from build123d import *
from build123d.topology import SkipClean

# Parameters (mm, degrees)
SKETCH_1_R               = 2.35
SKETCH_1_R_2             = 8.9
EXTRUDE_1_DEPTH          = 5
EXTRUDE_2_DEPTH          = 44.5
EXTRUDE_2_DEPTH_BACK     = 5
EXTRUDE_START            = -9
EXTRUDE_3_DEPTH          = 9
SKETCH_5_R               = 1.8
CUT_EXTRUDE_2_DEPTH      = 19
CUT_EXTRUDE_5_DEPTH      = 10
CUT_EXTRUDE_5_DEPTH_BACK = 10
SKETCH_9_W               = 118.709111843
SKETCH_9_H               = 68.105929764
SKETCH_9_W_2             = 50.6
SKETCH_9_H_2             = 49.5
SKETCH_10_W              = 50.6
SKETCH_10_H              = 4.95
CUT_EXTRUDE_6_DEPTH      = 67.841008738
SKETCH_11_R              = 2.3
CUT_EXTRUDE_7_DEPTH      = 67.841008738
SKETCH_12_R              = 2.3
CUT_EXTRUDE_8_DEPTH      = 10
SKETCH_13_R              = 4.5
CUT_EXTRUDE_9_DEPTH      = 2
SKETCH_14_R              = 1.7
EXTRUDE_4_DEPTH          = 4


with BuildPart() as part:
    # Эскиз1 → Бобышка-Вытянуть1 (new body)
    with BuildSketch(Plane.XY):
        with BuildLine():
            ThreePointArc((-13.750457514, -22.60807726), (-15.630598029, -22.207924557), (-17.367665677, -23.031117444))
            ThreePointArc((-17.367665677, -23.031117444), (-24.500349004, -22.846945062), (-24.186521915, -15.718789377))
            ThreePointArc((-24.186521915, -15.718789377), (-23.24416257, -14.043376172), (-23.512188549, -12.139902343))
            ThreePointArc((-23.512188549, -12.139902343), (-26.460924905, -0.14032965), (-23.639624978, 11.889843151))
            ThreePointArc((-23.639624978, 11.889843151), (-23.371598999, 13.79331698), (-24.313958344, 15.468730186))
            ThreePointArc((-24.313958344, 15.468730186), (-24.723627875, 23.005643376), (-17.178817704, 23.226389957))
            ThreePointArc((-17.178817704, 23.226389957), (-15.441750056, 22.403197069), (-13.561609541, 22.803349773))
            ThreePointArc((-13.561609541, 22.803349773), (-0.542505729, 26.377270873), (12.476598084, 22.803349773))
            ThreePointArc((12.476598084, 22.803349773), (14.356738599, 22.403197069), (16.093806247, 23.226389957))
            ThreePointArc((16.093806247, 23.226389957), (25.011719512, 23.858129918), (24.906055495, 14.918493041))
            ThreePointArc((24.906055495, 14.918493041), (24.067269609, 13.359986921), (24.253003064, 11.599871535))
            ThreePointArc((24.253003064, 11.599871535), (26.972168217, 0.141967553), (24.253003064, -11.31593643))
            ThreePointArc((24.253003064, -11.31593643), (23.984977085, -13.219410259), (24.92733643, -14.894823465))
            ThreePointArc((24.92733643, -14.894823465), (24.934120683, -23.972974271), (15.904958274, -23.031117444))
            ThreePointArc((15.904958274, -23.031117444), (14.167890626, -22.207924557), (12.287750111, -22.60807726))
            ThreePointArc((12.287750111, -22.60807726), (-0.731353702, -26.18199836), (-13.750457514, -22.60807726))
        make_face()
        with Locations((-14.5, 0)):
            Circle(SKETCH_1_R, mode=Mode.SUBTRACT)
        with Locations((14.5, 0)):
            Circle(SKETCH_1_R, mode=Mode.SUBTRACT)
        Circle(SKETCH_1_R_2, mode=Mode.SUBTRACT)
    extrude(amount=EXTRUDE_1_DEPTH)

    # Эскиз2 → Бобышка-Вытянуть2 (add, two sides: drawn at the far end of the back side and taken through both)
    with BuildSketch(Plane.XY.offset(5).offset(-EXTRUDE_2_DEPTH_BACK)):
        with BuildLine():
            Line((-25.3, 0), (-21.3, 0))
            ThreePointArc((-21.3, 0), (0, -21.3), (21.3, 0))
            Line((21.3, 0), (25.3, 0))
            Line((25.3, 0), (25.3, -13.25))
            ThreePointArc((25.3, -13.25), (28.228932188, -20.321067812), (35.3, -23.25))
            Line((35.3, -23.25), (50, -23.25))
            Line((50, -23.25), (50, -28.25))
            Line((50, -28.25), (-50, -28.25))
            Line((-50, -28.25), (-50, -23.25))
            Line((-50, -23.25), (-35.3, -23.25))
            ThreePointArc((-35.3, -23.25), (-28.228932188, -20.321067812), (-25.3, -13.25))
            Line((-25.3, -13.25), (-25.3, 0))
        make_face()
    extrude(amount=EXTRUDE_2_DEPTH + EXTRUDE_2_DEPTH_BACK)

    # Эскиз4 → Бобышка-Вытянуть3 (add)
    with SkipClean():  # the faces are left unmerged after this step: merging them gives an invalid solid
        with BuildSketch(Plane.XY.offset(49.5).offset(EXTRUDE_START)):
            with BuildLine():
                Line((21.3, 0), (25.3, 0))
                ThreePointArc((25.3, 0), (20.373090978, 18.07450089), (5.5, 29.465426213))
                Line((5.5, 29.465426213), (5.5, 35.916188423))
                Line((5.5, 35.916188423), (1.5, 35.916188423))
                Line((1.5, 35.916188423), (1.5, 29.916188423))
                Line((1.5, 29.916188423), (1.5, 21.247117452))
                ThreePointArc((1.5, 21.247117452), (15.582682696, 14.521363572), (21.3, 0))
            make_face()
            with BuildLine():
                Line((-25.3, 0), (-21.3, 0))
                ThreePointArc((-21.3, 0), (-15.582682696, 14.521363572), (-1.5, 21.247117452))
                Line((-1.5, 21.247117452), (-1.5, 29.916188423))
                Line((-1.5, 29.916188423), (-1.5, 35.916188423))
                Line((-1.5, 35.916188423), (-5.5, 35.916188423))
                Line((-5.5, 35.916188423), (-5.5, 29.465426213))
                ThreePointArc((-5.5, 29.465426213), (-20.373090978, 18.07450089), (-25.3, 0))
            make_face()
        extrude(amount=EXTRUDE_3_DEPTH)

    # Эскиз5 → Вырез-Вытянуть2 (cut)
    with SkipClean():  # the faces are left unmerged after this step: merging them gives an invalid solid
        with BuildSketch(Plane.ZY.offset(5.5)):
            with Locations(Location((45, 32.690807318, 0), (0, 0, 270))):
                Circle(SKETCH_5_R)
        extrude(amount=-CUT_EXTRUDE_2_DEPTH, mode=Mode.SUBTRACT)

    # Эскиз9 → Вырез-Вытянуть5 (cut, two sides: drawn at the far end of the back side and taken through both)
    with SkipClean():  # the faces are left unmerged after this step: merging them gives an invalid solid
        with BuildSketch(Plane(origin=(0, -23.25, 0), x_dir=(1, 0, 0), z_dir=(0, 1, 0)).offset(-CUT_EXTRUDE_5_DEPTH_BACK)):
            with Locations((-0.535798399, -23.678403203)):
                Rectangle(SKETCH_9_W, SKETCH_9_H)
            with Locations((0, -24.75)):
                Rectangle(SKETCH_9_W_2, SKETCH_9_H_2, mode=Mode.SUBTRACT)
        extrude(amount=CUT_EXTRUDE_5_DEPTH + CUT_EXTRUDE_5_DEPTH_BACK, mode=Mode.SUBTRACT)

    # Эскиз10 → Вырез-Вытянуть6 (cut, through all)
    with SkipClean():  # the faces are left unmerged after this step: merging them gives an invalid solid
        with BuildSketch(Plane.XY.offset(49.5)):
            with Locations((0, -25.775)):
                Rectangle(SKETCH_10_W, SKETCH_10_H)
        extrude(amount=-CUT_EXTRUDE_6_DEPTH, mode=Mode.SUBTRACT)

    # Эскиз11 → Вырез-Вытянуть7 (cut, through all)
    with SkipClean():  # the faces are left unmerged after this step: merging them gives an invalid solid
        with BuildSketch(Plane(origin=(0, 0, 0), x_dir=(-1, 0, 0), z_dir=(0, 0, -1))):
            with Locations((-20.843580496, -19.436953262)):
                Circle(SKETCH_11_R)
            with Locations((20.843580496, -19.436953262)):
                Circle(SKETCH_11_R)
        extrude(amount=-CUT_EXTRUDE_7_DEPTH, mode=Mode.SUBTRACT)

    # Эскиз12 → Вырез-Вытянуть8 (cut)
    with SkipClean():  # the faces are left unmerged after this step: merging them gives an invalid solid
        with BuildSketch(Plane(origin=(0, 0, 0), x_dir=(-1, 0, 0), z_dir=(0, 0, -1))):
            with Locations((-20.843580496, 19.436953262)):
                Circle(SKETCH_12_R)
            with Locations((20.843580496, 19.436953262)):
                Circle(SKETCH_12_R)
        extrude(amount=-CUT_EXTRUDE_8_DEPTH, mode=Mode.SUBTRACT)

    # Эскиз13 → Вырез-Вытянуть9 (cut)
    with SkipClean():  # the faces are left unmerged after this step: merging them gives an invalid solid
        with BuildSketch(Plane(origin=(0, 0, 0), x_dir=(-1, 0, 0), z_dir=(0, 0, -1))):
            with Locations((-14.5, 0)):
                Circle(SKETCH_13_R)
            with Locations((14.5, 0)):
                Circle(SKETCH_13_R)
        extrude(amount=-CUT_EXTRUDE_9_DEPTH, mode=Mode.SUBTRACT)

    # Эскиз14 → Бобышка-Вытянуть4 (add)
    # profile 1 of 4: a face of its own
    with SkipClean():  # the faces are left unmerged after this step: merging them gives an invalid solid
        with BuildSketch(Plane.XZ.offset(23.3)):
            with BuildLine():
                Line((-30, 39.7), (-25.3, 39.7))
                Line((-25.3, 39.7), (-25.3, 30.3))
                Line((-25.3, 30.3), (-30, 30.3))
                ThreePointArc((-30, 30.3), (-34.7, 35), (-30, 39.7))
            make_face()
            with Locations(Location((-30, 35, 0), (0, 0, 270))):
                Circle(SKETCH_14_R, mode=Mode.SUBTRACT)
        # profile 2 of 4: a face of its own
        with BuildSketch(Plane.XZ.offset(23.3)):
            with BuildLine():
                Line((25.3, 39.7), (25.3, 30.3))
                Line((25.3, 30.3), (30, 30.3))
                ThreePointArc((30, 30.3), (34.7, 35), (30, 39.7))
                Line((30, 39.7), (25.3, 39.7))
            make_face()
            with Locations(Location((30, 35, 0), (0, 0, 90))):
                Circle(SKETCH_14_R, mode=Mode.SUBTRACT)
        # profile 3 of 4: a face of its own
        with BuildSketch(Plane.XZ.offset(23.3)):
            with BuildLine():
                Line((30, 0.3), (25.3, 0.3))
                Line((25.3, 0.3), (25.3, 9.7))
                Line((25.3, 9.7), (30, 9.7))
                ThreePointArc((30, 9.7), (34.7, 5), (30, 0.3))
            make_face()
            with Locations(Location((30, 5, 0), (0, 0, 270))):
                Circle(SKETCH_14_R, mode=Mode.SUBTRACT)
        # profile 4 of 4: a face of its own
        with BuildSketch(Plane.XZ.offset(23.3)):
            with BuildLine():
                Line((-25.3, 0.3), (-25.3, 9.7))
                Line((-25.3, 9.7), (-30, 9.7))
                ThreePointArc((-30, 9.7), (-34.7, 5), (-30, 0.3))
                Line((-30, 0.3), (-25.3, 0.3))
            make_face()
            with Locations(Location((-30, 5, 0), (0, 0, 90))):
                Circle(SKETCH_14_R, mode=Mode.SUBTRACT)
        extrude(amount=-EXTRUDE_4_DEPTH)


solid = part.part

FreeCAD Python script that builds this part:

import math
import FreeCAD as App
import Part
import Sketcher

V = App.Vector
Q = App.Units.Quantity


def add_polygon(sketch, points):
    """Adds a closed chain of lines whose ends are joined by coincident constraints."""
    first, n = sketch.GeometryCount, len(points)
    for a, b in zip(points, points[1:] + points[:1]):
        sketch.addGeometry(Part.LineSegment(App.Vector(*a, 0), App.Vector(*b, 0)), False)
    for i in range(n):
        sketch.addConstraint(Sketcher.Constraint("Coincident", first + i, 2, first + (i + 1) % n, 1))

doc = App.newDocument("Part")
body = doc.addObject("PartDesign::Body", "Body")

sketch1 = doc.addObject("Sketcher::SketchObject", "Sketch")
body.addObject(sketch1)
sketch1.AttachmentSupport = (doc.XY_Plane, [""])
sketch1.MapMode = "FlatFace"
sketch1.addGeometry(Part.ArcOfCircle(Part.Circle(V(-15.282117, -25.187616, 0), V(0, 0, 1), 3), math.radians(59.299322), math.radians(134.041799)), False)
sketch1.addGeometry(Part.ArcOfCircle(Part.Circle(V(-0.731354, -0.681998, 0), V(0, 0, 1), 25.5), math.radians(-120.700678), math.radians(-59.299322)), False)
sketch1.addGeometry(Part.ArcOfCircle(Part.Circle(V(13.819409, -25.187616, 0), V(0, 0, 1), 3), math.radians(45.958201), math.radians(120.700678)), False)
sketch1.addGeometry(Part.ArcOfCircle(Part.Circle(V(20.84358, -19.436953, 0), V(0, 0, 1), 6.108028), math.radians(-143.954124), math.radians(48.041799)), False)
sketch1.addGeometry(Part.ArcOfCircle(Part.Circle(V(26.933101, -12.663925, 0), V(0, 0, 1), 3), math.radians(153.299322), math.radians(228.041799)), False)
sketch1.addGeometry(Part.ArcOfCircle(Part.Circle(V(1.472168, 0.141968, 0), V(0, 0, 1), 25.5), math.radians(-26.700678), math.radians(26.700678)), False)
sketch1.addGeometry(Part.ArcOfCircle(Part.Circle(V(27.010818, 12.780743, 0), V(0, 0, 1), 3), math.radians(134.554506), math.radians(203.180173)), False)
sketch1.addGeometry(Part.ArcOfCircle(Part.Circle(V(20.84358, 19.436953, 0), V(0, 0, 1), 6.076198), math.radians(-48.041799), math.radians(141.416642)), False)
sketch1.addGeometry(Part.ArcOfCircle(Part.Circle(V(14.008257, 25.382888, 0), V(0, 0, 1), 3), math.radians(-120.700678), math.radians(-45.958201)), False)
sketch1.addGeometry(Part.ArcOfCircle(Part.Circle(V(-0.542506, 0.877271, 0), V(0, 0, 1), 25.5), math.radians(59.299322), math.radians(120.700678)), False)
sketch1.addGeometry(Part.ArcOfCircle(Part.Circle(V(-15.093269, 25.382888, 0), V(0, 0, 1), 3), math.radians(-134.041799), math.radians(-59.299322)), False)
sketch1.addGeometry(Part.ArcOfCircle(Part.Circle(V(-20.84358, 19.436953, 0), V(0, 0, 1), 5.271652), math.radians(45.958201), math.radians(228.82894)), False)
sketch1.addGeometry(Part.ArcOfCircle(Part.Circle(V(-26.319723, 13.237832, 0), V(0, 0, 1), 3), math.radians(-26.700678), math.radians(48.041799)), False)
sketch1.addGeometry(Part.ArcOfCircle(Part.Circle(V(0, 0, 0), V(0, 0, 1), 26.461297), math.radians(153.299322), math.radians(207.308383)), False)
sketch1.addGeometry(Part.ArcOfCircle(Part.Circle(V(-26.192287, -13.487891, 0), V(0, 0, 1), 3), math.radians(-48.041799), math.radians(26.700678)), False)
sketch1.addGeometry(Part.ArcOfCircle(Part.Circle(V(-20.84358, -19.436953, 0), V(0, 0, 1), 5), math.radians(131.958201), math.radians(314.041799)), False)
sketch1.addGeometry(Part.Circle(V(14.5, 0, 0), V(0, 0, 1), 2.35), False)
sketch1.addGeometry(Part.Circle(V(0, 0, 0), V(0, 0, 1), 8.9), False)
sketch1.addGeometry(Part.Circle(V(-14.5, 0, 0), V(0, 0, 1), 2.35), False)
sketch1.addConstraint(Sketcher.Constraint("Tangent", 0, 1, 1, 1))
sketch1.addConstraint(Sketcher.Constraint("Tangent", 1, 2, 2, 2))
sketch1.addConstraint(Sketcher.Constraint("Coincident", 2, 1, 3, 1))
sketch1.addConstraint(Sketcher.Constraint("Tangent", 3, 2, 4, 2))
sketch1.addConstraint(Sketcher.Constraint("Tangent", 4, 1, 5, 1))
sketch1.addConstraint(Sketcher.Constraint("Coincident", 5, 2, 6, 2))
sketch1.addConstraint(Sketcher.Constraint("Coincident", 6, 1, 7, 1))
sketch1.addConstraint(Sketcher.Constraint("Coincident", 7, 2, 8, 2))
sketch1.addConstraint(Sketcher.Constraint("Tangent", 8, 1, 9, 1))
sketch1.addConstraint(Sketcher.Constraint("Tangent", 9, 2, 10, 2))
sketch1.addConstraint(Sketcher.Constraint("Tangent", 10, 1, 11, 1))
sketch1.addConstraint(Sketcher.Constraint("Coincident", 11, 2, 12, 2))
sketch1.addConstraint(Sketcher.Constraint("Tangent", 12, 1, 13, 1))
sketch1.addConstraint(Sketcher.Constraint("Coincident", 13, 2, 14, 2))
sketch1.addConstraint(Sketcher.Constraint("Tangent", 14, 1, 15, 1))
sketch1.addConstraint(Sketcher.Constraint("Tangent", 15, 2, 0, 2))
sketch1.addConstraint(Sketcher.Constraint("Coincident", 13, 3, -1, 1))
sketch1.addConstraint(Sketcher.Constraint("Coincident", 17, 3, -1, 1))
sketch1.addConstraint(Sketcher.Constraint("Equal", 0, 2))
sketch1.addConstraint(Sketcher.Constraint("Equal", 2, 4))
sketch1.addConstraint(Sketcher.Constraint("Equal", 1, 5))
sketch1.addConstraint(Sketcher.Constraint("Equal", 4, 6))
sketch1.addConstraint(Sketcher.Constraint("Equal", 6, 8))
sketch1.addConstraint(Sketcher.Constraint("Equal", 5, 9))
sketch1.addConstraint(Sketcher.Constraint("Equal", 8, 10))
sketch1.addConstraint(Sketcher.Constraint("Equal", 10, 12))
sketch1.addConstraint(Sketcher.Constraint("Equal", 12, 14))
sketch1.addConstraint(Sketcher.Constraint("Equal", 16, 18))
sketch1.addConstraint(Sketcher.Constraint("Symmetric", 3, 3, 11, 3, -1, 1))
sketch1.addConstraint(Sketcher.Constraint("Symmetric", 7, 3, 15, 3, -1, 1))
sketch1.addConstraint(Sketcher.Constraint("Symmetric", 16, 3, 18, 3, -1, 1))
sketch1.addConstraint(Sketcher.Constraint("Symmetric", 7, 3, 11, 3, -2))
sketch1.addConstraint(Sketcher.Constraint("PointOnObject", 16, 3, -1))
sketch1.addConstraint(Sketcher.Constraint("Horizontal", 0, 3, 2, 3))
sketch1.addConstraint(Sketcher.Constraint("Horizontal", 8, 3, 10, 3))
sketch1.addConstraint(Sketcher.Constraint("Horizontal", 7, 2, 10, 1))
sketch1.addConstraint(Sketcher.Constraint("Horizontal", 2, 1, 15, 2))
sketch1.addConstraint(Sketcher.Constraint("Vertical", 4, 1, 5, 2))
sketch1.addConstraint(Sketcher.Constraint("Radius", 0, Q("3 mm")))
sketch1.addConstraint(Sketcher.Constraint("Radius", 15, Q("5 mm")))
sketch1.addConstraint(Sketcher.Constraint("Diameter", 16, Q("4.7 mm")))
sketch1.addConstraint(Sketcher.Constraint("Diameter", 17, Q("17.8 mm")))
sketch1.addConstraint(Sketcher.Constraint("Radius", 1, Q("25.5 mm")))
sketch1.addConstraint(Sketcher.Constraint("DistanceX", -1, 1, 16, 3, Q("14.5 mm")))
sketch1.addConstraint(Sketcher.Constraint("Radius", 7, Q("6.076198 mm")))
sketch1.addConstraint(Sketcher.Constraint("DistanceY", 1, 3, -1, 1, Q("0.681998 mm")))
sketch1.addConstraint(Sketcher.Constraint("Radius", 3, Q("6.108028 mm")))
sketch1.addConstraint(Sketcher.Constraint("Radius", 11, Q("5.271652 mm")))
sketch1.addConstraint(Sketcher.Constraint("Radius", 13, Q("26.461297 mm")))
sketch1.addConstraint(Sketcher.Constraint("DistanceX", -1, 1, 4, 3, Q("26.933101 mm")))
sketch1.addConstraint(Sketcher.Constraint("DistanceX", -1, 1, 8, 1, Q("12.476598 mm")))
sketch1.addConstraint(Sketcher.Constraint("DistanceY", 2, 3, 2, 1, Q("2.156499 mm")))
sketch1.addConstraint(Sketcher.Constraint("DistanceY", 3, 2, 4, 3, Q("2.230898 mm")))
sketch1.addConstraint(Sketcher.Constraint("DistanceX", 4, 1, 4, 3, Q("2.680098 mm")))
sketch1.addConstraint(Sketcher.Constraint("DistanceX", 8, 3, 6, 1, Q("10.897798 mm")))
sketch1.addConstraint(Sketcher.Constraint("DistanceY", 12, 3, 11, 2, Q("2.230898 mm")))
sketch1.addConstraint(Sketcher.Constraint("DistanceX", 14, 3, 13, 2, Q("2.680098 mm")))
pad1 = doc.addObject("PartDesign::Pad", "Pad")
body.addObject(pad1)
pad1.Profile = sketch1
pad1.Length = 5

sketch2 = doc.addObject("Sketcher::SketchObject", "Sketch001")
body.addObject(sketch2)
sketch2.AttachmentSupport = (doc.XY_Plane, [""])
sketch2.MapMode = "FlatFace"
sketch2.AttachmentOffset = App.Placement(V(0, 0, 5), App.Rotation())
sketch2.addGeometry(Part.LineSegment(V(-21.3, 0, 0), V(-25.3, 0, 0)), False)
sketch2.addGeometry(Part.LineSegment(V(-25.3, 0, 0), V(-25.3, -13.25, 0)), False)
sketch2.addGeometry(Part.ArcOfCircle(Part.Circle(V(-35.3, -13.25, 0), V(0, 0, 1), 10), math.radians(-90), math.radians(0)), False)
sketch2.addGeometry(Part.LineSegment(V(-35.3, -23.25, 0), V(-50, -23.25, 0)), False)
sketch2.addGeometry(Part.LineSegment(V(-50, -23.25, 0), V(-50, -28.25, 0)), False)
sketch2.addGeometry(Part.LineSegment(V(-50, -28.25, 0), V(50, -28.25, 0)), False)
sketch2.addGeometry(Part.LineSegment(V(50, -28.25, 0), V(50, -23.25, 0)), False)
sketch2.addGeometry(Part.LineSegment(V(50, -23.25, 0), V(35.3, -23.25, 0)), False)
sketch2.addGeometry(Part.ArcOfCircle(Part.Circle(V(35.3, -13.25, 0), V(0, 0, 1), 10), math.radians(180), math.radians(270)), False)
sketch2.addGeometry(Part.LineSegment(V(25.3, -13.25, 0), V(25.3, 0, 0)), False)
sketch2.addGeometry(Part.LineSegment(V(25.3, 0, 0), V(21.3, 0, 0)), False)
sketch2.addGeometry(Part.ArcOfCircle(Part.Circle(V(0, 0, 0), V(0, 0, 1), 21.3), math.radians(180), math.radians(360)), False)
sketch2.addConstraint(Sketcher.Constraint("Coincident", 0, 2, 1, 1))
sketch2.addConstraint(Sketcher.Constraint("Tangent", 1, 2, 2, 2))
sketch2.addConstraint(Sketcher.Constraint("Tangent", 2, 1, 3, 1))
sketch2.addConstraint(Sketcher.Constraint("Coincident", 3, 2, 4, 1))
sketch2.addConstraint(Sketcher.Constraint("Coincident", 4, 2, 5, 1))
sketch2.addConstraint(Sketcher.Constraint("Coincident", 5, 2, 6, 1))
sketch2.addConstraint(Sketcher.Constraint("Coincident", 6, 2, 7, 1))
sketch2.addConstraint(Sketcher.Constraint("Tangent", 7, 2, 8, 2))
sketch2.addConstraint(Sketcher.Constraint("Tangent", 8, 1, 9, 1))
sketch2.addConstraint(Sketcher.Constraint("Coincident", 9, 2, 10, 1))
sketch2.addConstraint(Sketcher.Constraint("Coincident", 10, 2, 11, 2))
sketch2.addConstraint(Sketcher.Constraint("Coincident", 11, 1, 0, 1))
sketch2.addConstraint(Sketcher.Constraint("Horizontal", 0))
sketch2.addConstraint(Sketcher.Constraint("Vertical", 1))
sketch2.addConstraint(Sketcher.Constraint("Horizontal", 3))
sketch2.addConstraint(Sketcher.Constraint("Vertical", 4))
sketch2.addConstraint(Sketcher.Constraint("Horizontal", 5))
sketch2.addConstraint(Sketcher.Constraint("Vertical", 6))
sketch2.addConstraint(Sketcher.Constraint("Horizontal", 7))
sketch2.addConstraint(Sketcher.Constraint("Vertical", 9))
sketch2.addConstraint(Sketcher.Constraint("Horizontal", 10))
sketch2.addConstraint(Sketcher.Constraint("Coincident", 11, 3, -1, 1))
sketch2.addConstraint(Sketcher.Constraint("Equal", 2, 8))
sketch2.addConstraint(Sketcher.Constraint("Symmetric", 0, 2, 9, 2, -1, 1))
sketch2.addConstraint(Sketcher.Constraint("Symmetric", 3, 2, 6, 2, -2))
sketch2.addConstraint(Sketcher.Constraint("PointOnObject", 0, 2, -1))
sketch2.addConstraint(Sketcher.Constraint("Radius", 2, Q("10 mm")))
sketch2.addConstraint(Sketcher.Constraint("Radius", 11, Q("21.3 mm")))
sketch2.addConstraint(Sketcher.Constraint("DistanceX", 0, 2, 0, 1, Q("4 mm")))
sketch2.addConstraint(Sketcher.Constraint("DistanceX", 5, 1, 5, 2, Q("100 mm")))
sketch2.addConstraint(Sketcher.Constraint("DistanceY", 4, 2, 4, 1, Q("5 mm")))
sketch2.addConstraint(Sketcher.Constraint("DistanceY", 1, 2, 1, 1, Q("13.25 mm")))
pad2 = doc.addObject("PartDesign::Pad", "Pad001")
body.addObject(pad2)
pad2.Profile = sketch2
pad2.Type = "TwoLengths"
pad2.Length = 44.5
pad2.Length2 = 5

sketch3 = doc.addObject("Sketcher::SketchObject", "Sketch002")
body.addObject(sketch3)
sketch3.AttachmentSupport = (doc.XY_Plane, [""])
sketch3.MapMode = "FlatFace"
sketch3.AttachmentOffset = App.Placement(V(0, 0, 40.5), App.Rotation())
sketch3.addGeometry(Part.LineSegment(V(21.3, 0, 0), V(25.3, 0, 0)), False)
sketch3.addGeometry(Part.ArcOfCircle(Part.Circle(V(-3.936184, 1.739301, 0), V(0, 0, 1), 29.287875), math.radians(-3.404592), math.radians(71.20474)), False)
sketch3.addGeometry(Part.LineSegment(V(5.5, 29.465426, 0), V(5.5, 35.916188, 0)), False)
sketch3.addGeometry(Part.LineSegment(V(5.5, 35.916188, 0), V(1.5, 35.916188, 0)), False)
sketch3.addGeometry(Part.LineSegment(V(1.5, 35.916188, 0), V(1.5, 21.247117, 0)), False)
sketch3.addGeometry(Part.ArcOfCircle(Part.Circle(V(0, 0, 0), V(0, 0, 1), 21.3), math.radians(0), math.radians(85.961743)), False)
sketch3.addGeometry(Part.LineSegment(V(-25.3, 0, 0), V(-21.3, 0, 0)), False)
sketch3.addGeometry(Part.ArcOfCircle(Part.Circle(V(0, 0, 0), V(0, 0, 1), 21.3), math.radians(94.038257), math.radians(180)), False)
sketch3.addGeometry(Part.LineSegment(V(-1.5, 21.247117, 0), V(-1.5, 29.916188, 0)), False)
sketch3.addGeometry(Part.LineSegment(V(-1.5, 29.916188, 0), V(-1.5, 35.916188, 0)), False)
sketch3.addGeometry(Part.LineSegment(V(-1.5, 35.916188, 0), V(-5.5, 35.916188, 0)), False)
sketch3.addGeometry(Part.LineSegment(V(-5.5, 35.916188, 0), V(-5.5, 29.465426, 0)), False)
sketch3.addGeometry(Part.ArcOfCircle(Part.Circle(V(3.936184, 1.739301, 0), V(0, 0, 1), 29.287875), math.radians(108.79526), math.radians(183.404592)), False)
sketch3.addConstraint(Sketcher.Constraint("Coincident", 0, 2, 1, 1))
sketch3.addConstraint(Sketcher.Constraint("Coincident", 1, 2, 2, 1))
sketch3.addConstraint(Sketcher.Constraint("Coincident", 2, 2, 3, 1))
sketch3.addConstraint(Sketcher.Constraint("Coincident", 3, 2, 4, 1))
sketch3.addConstraint(Sketcher.Constraint("Coincident", 4, 2, 5, 2))
sketch3.addConstraint(Sketcher.Constraint("Coincident", 5, 1, 0, 1))
sketch3.addConstraint(Sketcher.Constraint("Coincident", 6, 2, 7, 2))
sketch3.addConstraint(Sketcher.Constraint("Coincident", 7, 1, 8, 1))
sketch3.addConstraint(Sketcher.Constraint("Coincident", 8, 2, 9, 1))
sketch3.addConstraint(Sketcher.Constraint("Coincident", 9, 2, 10, 1))
sketch3.addConstraint(Sketcher.Constraint("Coincident", 10, 2, 11, 1))
sketch3.addConstraint(Sketcher.Constraint("Coincident", 11, 2, 12, 1))
sketch3.addConstraint(Sketcher.Constraint("Coincident", 12, 2, 6, 1))
sketch3.addConstraint(Sketcher.Constraint("Horizontal", 0))
sketch3.addConstraint(Sketcher.Constraint("Vertical", 2))
sketch3.addConstraint(Sketcher.Constraint("Horizontal", 3))
sketch3.addConstraint(Sketcher.Constraint("Vertical", 4))
sketch3.addConstraint(Sketcher.Constraint("Horizontal", 6))
sketch3.addConstraint(Sketcher.Constraint("Vertical", 8))
sketch3.addConstraint(Sketcher.Constraint("Vertical", 9))
sketch3.addConstraint(Sketcher.Constraint("Horizontal", 10))
sketch3.addConstraint(Sketcher.Constraint("Vertical", 11))
sketch3.addConstraint(Sketcher.Constraint("Coincident", 5, 3, -1, 1))
sketch3.addConstraint(Sketcher.Constraint("Coincident", 7, 3, -1, 1))
sketch3.addConstraint(Sketcher.Constraint("Equal", 5, 7))
sketch3.addConstraint(Sketcher.Constraint("Equal", 1, 12))
sketch3.addConstraint(Sketcher.Constraint("Symmetric", 0, 2, 12, 2, -1, 1))
sketch3.addConstraint(Sketcher.Constraint("Symmetric", 1, 3, 12, 3, -2))
sketch3.addConstraint(Sketcher.Constraint("Symmetric", 3, 2, 9, 2, -2))
sketch3.addConstraint(Sketcher.Constraint("Horizontal", 1, 2, 11, 2))
sketch3.addConstraint(Sketcher.Constraint("Equal", 0, 3))
sketch3.addConstraint(Sketcher.Constraint("Radius", 5, Q("21.3 mm")))
sketch3.addConstraint(Sketcher.Constraint("DistanceX", 0, 1, 0, 2, Q("4 mm")))
sketch3.addConstraint(Sketcher.Constraint("DistanceY", 9, 1, 9, 2, Q("6 mm")))
sketch3.addConstraint(Sketcher.Constraint("DistanceX", 7, 1, 4, 2, Q("3 mm")))
sketch3.addConstraint(Sketcher.Constraint("Radius", 1, Q("29.287875 mm")))
sketch3.addConstraint(Sketcher.Constraint("DistanceY", 4, 2, 4, 1, Q("14.669071 mm")))
sketch3.addConstraint(Sketcher.Constraint("DistanceY", -1, 1, 1, 3, Q("1.739301 mm")))
pad3 = doc.addObject("PartDesign::Pad", "Pad002")
body.addObject(pad3)
pad3.Profile = sketch3
pad3.Length = 9

sketch4 = doc.addObject("Sketcher::SketchObject", "Sketch003")
body.addObject(sketch4)
sketch4.AttachmentSupport = (doc.YZ_Plane, [""])
sketch4.MapMode = "FlatFace"
sketch4.AttachmentOffset = App.Placement(V(0, 0, -5.5), App.Rotation())
sketch4.addGeometry(Part.Circle(V(32.690807, 45, 0), V(0, 0, 1), 1.8), False)
sketch4.addConstraint(Sketcher.Constraint("Diameter", 0, Q("3.6 mm")))
sketch4.addConstraint(Sketcher.Constraint("DistanceY", -1, 1, 0, 3, Q("45 mm")))
sketch4.addConstraint(Sketcher.Constraint("DistanceX", -1, 1, 0, 3, Q("32.690807 mm")))
pocket1 = doc.addObject("PartDesign::Pocket", "Pocket")
body.addObject(pocket1)
pocket1.Profile = sketch4
pocket1.Length = 19
pocket1.Reversed = True

sketch5 = doc.addObject("Sketcher::SketchObject", "Sketch004")
body.addObject(sketch5)
sketch5.AttachmentSupport = (doc.XZ_Plane, [""])
sketch5.MapMode = "FlatFace"
sketch5.AttachmentOffset = App.Placement(V(0, 0, 23.25), App.Rotation())
add_polygon(sketch5, [(-59.890354, -10.374562), (-59.890354, 57.731368), (58.818758, 57.731368), (58.818758, -10.374562)])
add_polygon(sketch5, [(25.3, 49.5), (-25.3, 49.5), (-25.3, 0), (25.3, 0)])
sketch5.addConstraint(Sketcher.Constraint("Vertical", 0))
sketch5.addConstraint(Sketcher.Constraint("Horizontal", 1))
sketch5.addConstraint(Sketcher.Constraint("Vertical", 2))
sketch5.addConstraint(Sketcher.Constraint("Horizontal", 3))
sketch5.addConstraint(Sketcher.Constraint("Horizontal", 4))
sketch5.addConstraint(Sketcher.Constraint("Vertical", 5))
sketch5.addConstraint(Sketcher.Constraint("Horizontal", 6))
sketch5.addConstraint(Sketcher.Constraint("Vertical", 7))
sketch5.addConstraint(Sketcher.Constraint("Symmetric", 5, 2, 6, 2, -1, 1))
sketch5.addConstraint(Sketcher.Constraint("DistanceX", 4, 2, 4, 1, Q("50.6 mm")))
sketch5.addConstraint(Sketcher.Constraint("DistanceY", 5, 2, 5, 1, Q("49.5 mm")))
sketch5.addConstraint(Sketcher.Constraint("DistanceX", 1, 1, 1, 2, Q("118.709112 mm")))
sketch5.addConstraint(Sketcher.Constraint("DistanceY", 0, 1, 0, 2, Q("68.10593 mm")))
sketch5.addConstraint(Sketcher.Constraint("DistanceY", -1, 1, 0, 2, Q("57.731368 mm")))
sketch5.addConstraint(Sketcher.Constraint("DistanceX", 0, 2, -1, 1, Q("59.890354 mm")))
pocket2 = doc.addObject("PartDesign::Pocket", "Pocket001")
body.addObject(pocket2)
pocket2.Profile = sketch5
pocket2.Type = "TwoLengths"
pocket2.Length = 10
pocket2.Length2 = 10

sketch6 = doc.addObject("Sketcher::SketchObject", "Sketch005")
body.addObject(sketch6)
sketch6.AttachmentSupport = (doc.XY_Plane, [""])
sketch6.MapMode = "FlatFace"
sketch6.AttachmentOffset = App.Placement(V(0, 0, 49.5), App.Rotation())
add_polygon(sketch6, [(-25.3, -23.3), (-25.3, -28.25), (25.3, -28.25), (25.3, -23.3)])
sketch6.addConstraint(Sketcher.Constraint("Vertical", 0))
sketch6.addConstraint(Sketcher.Constraint("Horizontal", 1))
sketch6.addConstraint(Sketcher.Constraint("Vertical", 2))
sketch6.addConstraint(Sketcher.Constraint("Horizontal", 3))
sketch6.addConstraint(Sketcher.Constraint("DistanceX", 1, 1, 1, 2, Q("50.6 mm")))
sketch6.addConstraint(Sketcher.Constraint("DistanceY", 0, 2, 0, 1, Q("4.95 mm")))
sketch6.addConstraint(Sketcher.Constraint("DistanceX", 0, 2, -1, 1, Q("25.3 mm")))
sketch6.addConstraint(Sketcher.Constraint("DistanceY", 2, 2, -1, 1, Q("23.3 mm")))
pocket3 = doc.addObject("PartDesign::Pocket", "Pocket002")
body.addObject(pocket3)
pocket3.Profile = sketch6
pocket3.Type = "ThroughAll"

sketch7 = doc.addObject("Sketcher::SketchObject", "Sketch006")
body.addObject(sketch7)
sketch7.AttachmentSupport = (doc.XY_Plane, [""])
sketch7.MapMode = "FlatFace"
sketch7.addGeometry(Part.Circle(V(20.84358, -19.436953, 0), V(0, 0, 1), 2.3), False)
sketch7.addGeometry(Part.Circle(V(-20.84358, -19.436953, 0), V(0, 0, 1), 2.3), False)
sketch7.addConstraint(Sketcher.Constraint("Equal", 0, 1))
sketch7.addConstraint(Sketcher.Constraint("Symmetric", 0, 3, 1, 3, -2))
sketch7.addConstraint(Sketcher.Constraint("Diameter", 0, Q("4.6 mm")))
sketch7.addConstraint(Sketcher.Constraint("DistanceX", -1, 1, 0, 3, Q("20.84358 mm")))
sketch7.addConstraint(Sketcher.Constraint("DistanceY", 0, 3, -1, 1, Q("19.436953 mm")))
pocket4 = doc.addObject("PartDesign::Pocket", "Pocket003")
body.addObject(pocket4)
pocket4.Profile = sketch7
pocket4.Type = "ThroughAll"
pocket4.Reversed = True

sketch8 = doc.addObject("Sketcher::SketchObject", "Sketch007")
body.addObject(sketch8)
sketch8.AttachmentSupport = (doc.XY_Plane, [""])
sketch8.MapMode = "FlatFace"
sketch8.addGeometry(Part.Circle(V(20.84358, 19.436953, 0), V(0, 0, 1), 2.3), False)
sketch8.addGeometry(Part.Circle(V(-20.84358, 19.436953, 0), V(0, 0, 1), 2.3), False)
sketch8.addConstraint(Sketcher.Constraint("Equal", 0, 1))
sketch8.addConstraint(Sketcher.Constraint("Symmetric", 0, 3, 1, 3, -2))
sketch8.addConstraint(Sketcher.Constraint("Diameter", 0, Q("4.6 mm")))
sketch8.addConstraint(Sketcher.Constraint("DistanceX", -1, 1, 0, 3, Q("20.84358 mm")))
sketch8.addConstraint(Sketcher.Constraint("DistanceY", -1, 1, 0, 3, Q("19.436953 mm")))
pocket5 = doc.addObject("PartDesign::Pocket", "Pocket004")
body.addObject(pocket5)
pocket5.Profile = sketch8
pocket5.Length = 10
pocket5.Reversed = True

sketch9 = doc.addObject("Sketcher::SketchObject", "Sketch008")
body.addObject(sketch9)
sketch9.AttachmentSupport = (doc.XY_Plane, [""])
sketch9.MapMode = "FlatFace"
sketch9.addGeometry(Part.Circle(V(14.5, 0, 0), V(0, 0, 1), 4.5), False)
sketch9.addGeometry(Part.Circle(V(-14.5, 0, 0), V(0, 0, 1), 4.5), False)
sketch9.addConstraint(Sketcher.Constraint("Equal", 0, 1))
sketch9.addConstraint(Sketcher.Constraint("Symmetric", 0, 3, 1, 3, -1, 1))
sketch9.addConstraint(Sketcher.Constraint("PointOnObject", 0, 3, -1))
sketch9.addConstraint(Sketcher.Constraint("Diameter", 0, Q("9 mm")))
sketch9.addConstraint(Sketcher.Constraint("DistanceX", 1, 3, 0, 3, Q("29 mm")))
pocket6 = doc.addObject("PartDesign::Pocket", "Pocket005")
body.addObject(pocket6)
pocket6.Profile = sketch9
pocket6.Length = 2
pocket6.Reversed = True

sketch10 = doc.addObject("Sketcher::SketchObject", "Sketch009")
body.addObject(sketch10)
sketch10.AttachmentSupport = (doc.XZ_Plane, [""])
sketch10.MapMode = "FlatFace"
sketch10.AttachmentOffset = App.Placement(V(0, 0, 23.3), App.Rotation())
sketch10.addGeometry(Part.LineSegment(V(-25.3, 39.7, 0), V(-30, 39.7, 0)), False)
sketch10.addGeometry(Part.ArcOfCircle(Part.Circle(V(-30, 35, 0), V(0, 0, 1), 4.7), math.radians(90), math.radians(270)), False)
sketch10.addGeometry(Part.LineSegment(V(-30, 30.3, 0), V(-25.3, 30.3, 0)), False)
sketch10.addGeometry(Part.LineSegment(V(-25.3, 30.3, 0), V(-25.3, 39.7, 0)), False)
sketch10.addGeometry(Part.Circle(V(-30, 35, 0), V(0, 0, 1), 1.7), False)
sketch10.addGeometry(Part.LineSegment(V(25.3, 39.7, 0), V(25.3, 30.3, 0)), False)
sketch10.addGeometry(Part.LineSegment(V(25.3, 30.3, 0), V(30, 30.3, 0)), False)
sketch10.addGeometry(Part.ArcOfCircle(Part.Circle(V(30, 35, 0), V(0, 0, 1), 4.7), math.radians(-90), math.radians(90)), False)
sketch10.addGeometry(Part.LineSegment(V(30, 39.7, 0), V(25.3, 39.7, 0)), False)
sketch10.addGeometry(Part.Circle(V(30, 35, 0), V(0, 0, 1), 1.7), False)
sketch10.addGeometry(Part.LineSegment(V(25.3, 0.3, 0), V(30, 0.3, 0)), False)
sketch10.addGeometry(Part.ArcOfCircle(Part.Circle(V(30, 5, 0), V(0, 0, 1), 4.7), math.radians(-90), math.radians(90)), False)
sketch10.addGeometry(Part.LineSegment(V(30, 9.7, 0), V(25.3, 9.7, 0)), False)
sketch10.addGeometry(Part.LineSegment(V(25.3, 9.7, 0), V(25.3, 0.3, 0)), False)
sketch10.addGeometry(Part.Circle(V(30, 5, 0), V(0, 0, 1), 1.7), False)
sketch10.addGeometry(Part.LineSegment(V(-25.3, 0.3, 0), V(-25.3, 9.7, 0)), False)
sketch10.addGeometry(Part.LineSegment(V(-25.3, 9.7, 0), V(-30, 9.7, 0)), False)
sketch10.addGeometry(Part.ArcOfCircle(Part.Circle(V(-30, 5, 0), V(0, 0, 1), 4.7), math.radians(90), math.radians(270)), False)
sketch10.addGeometry(Part.LineSegment(V(-30, 0.3, 0), V(-25.3, 0.3, 0)), False)
sketch10.addGeometry(Part.Circle(V(-30, 5, 0), V(0, 0, 1), 1.7), False)
sketch10.addConstraint(Sketcher.Constraint("Tangent", 0, 2, 1, 1))
sketch10.addConstraint(Sketcher.Constraint("Tangent", 1, 2, 2, 1))
sketch10.addConstraint(Sketcher.Constraint("Coincident", 2, 2, 3, 1))
sketch10.addConstraint(Sketcher.Constraint("Coincident", 3, 2, 0, 1))
sketch10.addConstraint(Sketcher.Constraint("Coincident", 5, 2, 6, 1))
sketch10.addConstraint(Sketcher.Constraint("Tangent", 6, 2, 7, 1))
sketch10.addConstraint(Sketcher.Constraint("Tangent", 7, 2, 8, 1))
sketch10.addConstraint(Sketcher.Constraint("Coincident", 8, 2, 5, 1))
sketch10.addConstraint(Sketcher.Constraint("Tangent", 10, 2, 11, 1))
sketch10.addConstraint(Sketcher.Constraint("Tangent", 11, 2, 12, 1))
sketch10.addConstraint(Sketcher.Constraint("Coincident", 12, 2, 13, 1))
sketch10.addConstraint(Sketcher.Constraint("Coincident", 13, 2, 10, 1))
sketch10.addConstraint(Sketcher.Constraint("Coincident", 15, 2, 16, 1))
sketch10.addConstraint(Sketcher.Constraint("Tangent", 16, 2, 17, 1))
sketch10.addConstraint(Sketcher.Constraint("Tangent", 17, 2, 18, 1))
sketch10.addConstraint(Sketcher.Constraint("Coincident", 18, 2, 15, 1))
sketch10.addConstraint(Sketcher.Constraint("Horizontal", 0))
sketch10.addConstraint(Sketcher.Constraint("Horizontal", 2))
sketch10.addConstraint(Sketcher.Constraint("Vertical", 3))
sketch10.addConstraint(Sketcher.Constraint("Vertical", 5))
sketch10.addConstraint(Sketcher.Constraint("Horizontal", 6))
sketch10.addConstraint(Sketcher.Constraint("Horizontal", 8))
sketch10.addConstraint(Sketcher.Constraint("Horizontal", 10))
sketch10.addConstraint(Sketcher.Constraint("Horizontal", 12))
sketch10.addConstraint(Sketcher.Constraint("Vertical", 13))
sketch10.addConstraint(Sketcher.Constraint("Vertical", 15))
sketch10.addConstraint(Sketcher.Constraint("Horizontal", 16))
sketch10.addConstraint(Sketcher.Constraint("Horizontal", 18))
sketch10.addConstraint(Sketcher.Constraint("Coincident", 4, 3, 1, 3))
sketch10.addConstraint(Sketcher.Constraint("Coincident", 9, 3, 7, 3))
sketch10.addConstraint(Sketcher.Constraint("Coincident", 14, 3, 11, 3))
sketch10.addConstraint(Sketcher.Constraint("Coincident", 19, 3, 17, 3))
sketch10.addConstraint(Sketcher.Constraint("Equal", 1, 7))
sketch10.addConstraint(Sketcher.Constraint("Equal", 4, 9))
sketch10.addConstraint(Sketcher.Constraint("Equal", 7, 11))
sketch10.addConstraint(Sketcher.Constraint("Equal", 9, 14))
sketch10.addConstraint(Sketcher.Constraint("Equal", 11, 17))
sketch10.addConstraint(Sketcher.Constraint("Equal", 14, 19))
sketch10.addConstraint(Sketcher.Constraint("Symmetric", 1, 3, 7, 3, -2))
sketch10.addConstraint(Sketcher.Constraint("Symmetric", 11, 3, 17, 3, -2))
sketch10.addConstraint(Sketcher.Constraint("Vertical", 9, 3, 11, 3))
sketch10.addConstraint(Sketcher.Constraint("Vertical", 8, 2, 12, 2))
sketch10.addConstraint(Sketcher.Constraint("Vertical", 3, 2, 15, 2))
sketch10.addConstraint(Sketcher.Constraint("Equal", 2, 6))
sketch10.addConstraint(Sketcher.Constraint("Diameter", 4, Q("3.4 mm")))
sketch10.addConstraint(Sketcher.Constraint("Radius", 1, Q("4.7 mm")))
sketch10.addConstraint(Sketcher.Constraint("DistanceX", 0, 2, 0, 1, Q("4.7 mm")))
sketch10.addConstraint(Sketcher.Constraint("DistanceX", 1, 3, -1, 1, Q("30 mm")))
sketch10.addConstraint(Sketcher.Constraint("DistanceY", -1, 1, 1, 3, Q("35 mm")))
sketch10.addConstraint(Sketcher.Constraint("DistanceY", -1, 1, 11, 3, Q("5 mm")))
pad4 = doc.addObject("PartDesign::Pad", "Pad003")
body.addObject(pad4)
pad4.Profile = sketch10
pad4.Length = 4
pad4.Reversed = True

doc.recompute()
